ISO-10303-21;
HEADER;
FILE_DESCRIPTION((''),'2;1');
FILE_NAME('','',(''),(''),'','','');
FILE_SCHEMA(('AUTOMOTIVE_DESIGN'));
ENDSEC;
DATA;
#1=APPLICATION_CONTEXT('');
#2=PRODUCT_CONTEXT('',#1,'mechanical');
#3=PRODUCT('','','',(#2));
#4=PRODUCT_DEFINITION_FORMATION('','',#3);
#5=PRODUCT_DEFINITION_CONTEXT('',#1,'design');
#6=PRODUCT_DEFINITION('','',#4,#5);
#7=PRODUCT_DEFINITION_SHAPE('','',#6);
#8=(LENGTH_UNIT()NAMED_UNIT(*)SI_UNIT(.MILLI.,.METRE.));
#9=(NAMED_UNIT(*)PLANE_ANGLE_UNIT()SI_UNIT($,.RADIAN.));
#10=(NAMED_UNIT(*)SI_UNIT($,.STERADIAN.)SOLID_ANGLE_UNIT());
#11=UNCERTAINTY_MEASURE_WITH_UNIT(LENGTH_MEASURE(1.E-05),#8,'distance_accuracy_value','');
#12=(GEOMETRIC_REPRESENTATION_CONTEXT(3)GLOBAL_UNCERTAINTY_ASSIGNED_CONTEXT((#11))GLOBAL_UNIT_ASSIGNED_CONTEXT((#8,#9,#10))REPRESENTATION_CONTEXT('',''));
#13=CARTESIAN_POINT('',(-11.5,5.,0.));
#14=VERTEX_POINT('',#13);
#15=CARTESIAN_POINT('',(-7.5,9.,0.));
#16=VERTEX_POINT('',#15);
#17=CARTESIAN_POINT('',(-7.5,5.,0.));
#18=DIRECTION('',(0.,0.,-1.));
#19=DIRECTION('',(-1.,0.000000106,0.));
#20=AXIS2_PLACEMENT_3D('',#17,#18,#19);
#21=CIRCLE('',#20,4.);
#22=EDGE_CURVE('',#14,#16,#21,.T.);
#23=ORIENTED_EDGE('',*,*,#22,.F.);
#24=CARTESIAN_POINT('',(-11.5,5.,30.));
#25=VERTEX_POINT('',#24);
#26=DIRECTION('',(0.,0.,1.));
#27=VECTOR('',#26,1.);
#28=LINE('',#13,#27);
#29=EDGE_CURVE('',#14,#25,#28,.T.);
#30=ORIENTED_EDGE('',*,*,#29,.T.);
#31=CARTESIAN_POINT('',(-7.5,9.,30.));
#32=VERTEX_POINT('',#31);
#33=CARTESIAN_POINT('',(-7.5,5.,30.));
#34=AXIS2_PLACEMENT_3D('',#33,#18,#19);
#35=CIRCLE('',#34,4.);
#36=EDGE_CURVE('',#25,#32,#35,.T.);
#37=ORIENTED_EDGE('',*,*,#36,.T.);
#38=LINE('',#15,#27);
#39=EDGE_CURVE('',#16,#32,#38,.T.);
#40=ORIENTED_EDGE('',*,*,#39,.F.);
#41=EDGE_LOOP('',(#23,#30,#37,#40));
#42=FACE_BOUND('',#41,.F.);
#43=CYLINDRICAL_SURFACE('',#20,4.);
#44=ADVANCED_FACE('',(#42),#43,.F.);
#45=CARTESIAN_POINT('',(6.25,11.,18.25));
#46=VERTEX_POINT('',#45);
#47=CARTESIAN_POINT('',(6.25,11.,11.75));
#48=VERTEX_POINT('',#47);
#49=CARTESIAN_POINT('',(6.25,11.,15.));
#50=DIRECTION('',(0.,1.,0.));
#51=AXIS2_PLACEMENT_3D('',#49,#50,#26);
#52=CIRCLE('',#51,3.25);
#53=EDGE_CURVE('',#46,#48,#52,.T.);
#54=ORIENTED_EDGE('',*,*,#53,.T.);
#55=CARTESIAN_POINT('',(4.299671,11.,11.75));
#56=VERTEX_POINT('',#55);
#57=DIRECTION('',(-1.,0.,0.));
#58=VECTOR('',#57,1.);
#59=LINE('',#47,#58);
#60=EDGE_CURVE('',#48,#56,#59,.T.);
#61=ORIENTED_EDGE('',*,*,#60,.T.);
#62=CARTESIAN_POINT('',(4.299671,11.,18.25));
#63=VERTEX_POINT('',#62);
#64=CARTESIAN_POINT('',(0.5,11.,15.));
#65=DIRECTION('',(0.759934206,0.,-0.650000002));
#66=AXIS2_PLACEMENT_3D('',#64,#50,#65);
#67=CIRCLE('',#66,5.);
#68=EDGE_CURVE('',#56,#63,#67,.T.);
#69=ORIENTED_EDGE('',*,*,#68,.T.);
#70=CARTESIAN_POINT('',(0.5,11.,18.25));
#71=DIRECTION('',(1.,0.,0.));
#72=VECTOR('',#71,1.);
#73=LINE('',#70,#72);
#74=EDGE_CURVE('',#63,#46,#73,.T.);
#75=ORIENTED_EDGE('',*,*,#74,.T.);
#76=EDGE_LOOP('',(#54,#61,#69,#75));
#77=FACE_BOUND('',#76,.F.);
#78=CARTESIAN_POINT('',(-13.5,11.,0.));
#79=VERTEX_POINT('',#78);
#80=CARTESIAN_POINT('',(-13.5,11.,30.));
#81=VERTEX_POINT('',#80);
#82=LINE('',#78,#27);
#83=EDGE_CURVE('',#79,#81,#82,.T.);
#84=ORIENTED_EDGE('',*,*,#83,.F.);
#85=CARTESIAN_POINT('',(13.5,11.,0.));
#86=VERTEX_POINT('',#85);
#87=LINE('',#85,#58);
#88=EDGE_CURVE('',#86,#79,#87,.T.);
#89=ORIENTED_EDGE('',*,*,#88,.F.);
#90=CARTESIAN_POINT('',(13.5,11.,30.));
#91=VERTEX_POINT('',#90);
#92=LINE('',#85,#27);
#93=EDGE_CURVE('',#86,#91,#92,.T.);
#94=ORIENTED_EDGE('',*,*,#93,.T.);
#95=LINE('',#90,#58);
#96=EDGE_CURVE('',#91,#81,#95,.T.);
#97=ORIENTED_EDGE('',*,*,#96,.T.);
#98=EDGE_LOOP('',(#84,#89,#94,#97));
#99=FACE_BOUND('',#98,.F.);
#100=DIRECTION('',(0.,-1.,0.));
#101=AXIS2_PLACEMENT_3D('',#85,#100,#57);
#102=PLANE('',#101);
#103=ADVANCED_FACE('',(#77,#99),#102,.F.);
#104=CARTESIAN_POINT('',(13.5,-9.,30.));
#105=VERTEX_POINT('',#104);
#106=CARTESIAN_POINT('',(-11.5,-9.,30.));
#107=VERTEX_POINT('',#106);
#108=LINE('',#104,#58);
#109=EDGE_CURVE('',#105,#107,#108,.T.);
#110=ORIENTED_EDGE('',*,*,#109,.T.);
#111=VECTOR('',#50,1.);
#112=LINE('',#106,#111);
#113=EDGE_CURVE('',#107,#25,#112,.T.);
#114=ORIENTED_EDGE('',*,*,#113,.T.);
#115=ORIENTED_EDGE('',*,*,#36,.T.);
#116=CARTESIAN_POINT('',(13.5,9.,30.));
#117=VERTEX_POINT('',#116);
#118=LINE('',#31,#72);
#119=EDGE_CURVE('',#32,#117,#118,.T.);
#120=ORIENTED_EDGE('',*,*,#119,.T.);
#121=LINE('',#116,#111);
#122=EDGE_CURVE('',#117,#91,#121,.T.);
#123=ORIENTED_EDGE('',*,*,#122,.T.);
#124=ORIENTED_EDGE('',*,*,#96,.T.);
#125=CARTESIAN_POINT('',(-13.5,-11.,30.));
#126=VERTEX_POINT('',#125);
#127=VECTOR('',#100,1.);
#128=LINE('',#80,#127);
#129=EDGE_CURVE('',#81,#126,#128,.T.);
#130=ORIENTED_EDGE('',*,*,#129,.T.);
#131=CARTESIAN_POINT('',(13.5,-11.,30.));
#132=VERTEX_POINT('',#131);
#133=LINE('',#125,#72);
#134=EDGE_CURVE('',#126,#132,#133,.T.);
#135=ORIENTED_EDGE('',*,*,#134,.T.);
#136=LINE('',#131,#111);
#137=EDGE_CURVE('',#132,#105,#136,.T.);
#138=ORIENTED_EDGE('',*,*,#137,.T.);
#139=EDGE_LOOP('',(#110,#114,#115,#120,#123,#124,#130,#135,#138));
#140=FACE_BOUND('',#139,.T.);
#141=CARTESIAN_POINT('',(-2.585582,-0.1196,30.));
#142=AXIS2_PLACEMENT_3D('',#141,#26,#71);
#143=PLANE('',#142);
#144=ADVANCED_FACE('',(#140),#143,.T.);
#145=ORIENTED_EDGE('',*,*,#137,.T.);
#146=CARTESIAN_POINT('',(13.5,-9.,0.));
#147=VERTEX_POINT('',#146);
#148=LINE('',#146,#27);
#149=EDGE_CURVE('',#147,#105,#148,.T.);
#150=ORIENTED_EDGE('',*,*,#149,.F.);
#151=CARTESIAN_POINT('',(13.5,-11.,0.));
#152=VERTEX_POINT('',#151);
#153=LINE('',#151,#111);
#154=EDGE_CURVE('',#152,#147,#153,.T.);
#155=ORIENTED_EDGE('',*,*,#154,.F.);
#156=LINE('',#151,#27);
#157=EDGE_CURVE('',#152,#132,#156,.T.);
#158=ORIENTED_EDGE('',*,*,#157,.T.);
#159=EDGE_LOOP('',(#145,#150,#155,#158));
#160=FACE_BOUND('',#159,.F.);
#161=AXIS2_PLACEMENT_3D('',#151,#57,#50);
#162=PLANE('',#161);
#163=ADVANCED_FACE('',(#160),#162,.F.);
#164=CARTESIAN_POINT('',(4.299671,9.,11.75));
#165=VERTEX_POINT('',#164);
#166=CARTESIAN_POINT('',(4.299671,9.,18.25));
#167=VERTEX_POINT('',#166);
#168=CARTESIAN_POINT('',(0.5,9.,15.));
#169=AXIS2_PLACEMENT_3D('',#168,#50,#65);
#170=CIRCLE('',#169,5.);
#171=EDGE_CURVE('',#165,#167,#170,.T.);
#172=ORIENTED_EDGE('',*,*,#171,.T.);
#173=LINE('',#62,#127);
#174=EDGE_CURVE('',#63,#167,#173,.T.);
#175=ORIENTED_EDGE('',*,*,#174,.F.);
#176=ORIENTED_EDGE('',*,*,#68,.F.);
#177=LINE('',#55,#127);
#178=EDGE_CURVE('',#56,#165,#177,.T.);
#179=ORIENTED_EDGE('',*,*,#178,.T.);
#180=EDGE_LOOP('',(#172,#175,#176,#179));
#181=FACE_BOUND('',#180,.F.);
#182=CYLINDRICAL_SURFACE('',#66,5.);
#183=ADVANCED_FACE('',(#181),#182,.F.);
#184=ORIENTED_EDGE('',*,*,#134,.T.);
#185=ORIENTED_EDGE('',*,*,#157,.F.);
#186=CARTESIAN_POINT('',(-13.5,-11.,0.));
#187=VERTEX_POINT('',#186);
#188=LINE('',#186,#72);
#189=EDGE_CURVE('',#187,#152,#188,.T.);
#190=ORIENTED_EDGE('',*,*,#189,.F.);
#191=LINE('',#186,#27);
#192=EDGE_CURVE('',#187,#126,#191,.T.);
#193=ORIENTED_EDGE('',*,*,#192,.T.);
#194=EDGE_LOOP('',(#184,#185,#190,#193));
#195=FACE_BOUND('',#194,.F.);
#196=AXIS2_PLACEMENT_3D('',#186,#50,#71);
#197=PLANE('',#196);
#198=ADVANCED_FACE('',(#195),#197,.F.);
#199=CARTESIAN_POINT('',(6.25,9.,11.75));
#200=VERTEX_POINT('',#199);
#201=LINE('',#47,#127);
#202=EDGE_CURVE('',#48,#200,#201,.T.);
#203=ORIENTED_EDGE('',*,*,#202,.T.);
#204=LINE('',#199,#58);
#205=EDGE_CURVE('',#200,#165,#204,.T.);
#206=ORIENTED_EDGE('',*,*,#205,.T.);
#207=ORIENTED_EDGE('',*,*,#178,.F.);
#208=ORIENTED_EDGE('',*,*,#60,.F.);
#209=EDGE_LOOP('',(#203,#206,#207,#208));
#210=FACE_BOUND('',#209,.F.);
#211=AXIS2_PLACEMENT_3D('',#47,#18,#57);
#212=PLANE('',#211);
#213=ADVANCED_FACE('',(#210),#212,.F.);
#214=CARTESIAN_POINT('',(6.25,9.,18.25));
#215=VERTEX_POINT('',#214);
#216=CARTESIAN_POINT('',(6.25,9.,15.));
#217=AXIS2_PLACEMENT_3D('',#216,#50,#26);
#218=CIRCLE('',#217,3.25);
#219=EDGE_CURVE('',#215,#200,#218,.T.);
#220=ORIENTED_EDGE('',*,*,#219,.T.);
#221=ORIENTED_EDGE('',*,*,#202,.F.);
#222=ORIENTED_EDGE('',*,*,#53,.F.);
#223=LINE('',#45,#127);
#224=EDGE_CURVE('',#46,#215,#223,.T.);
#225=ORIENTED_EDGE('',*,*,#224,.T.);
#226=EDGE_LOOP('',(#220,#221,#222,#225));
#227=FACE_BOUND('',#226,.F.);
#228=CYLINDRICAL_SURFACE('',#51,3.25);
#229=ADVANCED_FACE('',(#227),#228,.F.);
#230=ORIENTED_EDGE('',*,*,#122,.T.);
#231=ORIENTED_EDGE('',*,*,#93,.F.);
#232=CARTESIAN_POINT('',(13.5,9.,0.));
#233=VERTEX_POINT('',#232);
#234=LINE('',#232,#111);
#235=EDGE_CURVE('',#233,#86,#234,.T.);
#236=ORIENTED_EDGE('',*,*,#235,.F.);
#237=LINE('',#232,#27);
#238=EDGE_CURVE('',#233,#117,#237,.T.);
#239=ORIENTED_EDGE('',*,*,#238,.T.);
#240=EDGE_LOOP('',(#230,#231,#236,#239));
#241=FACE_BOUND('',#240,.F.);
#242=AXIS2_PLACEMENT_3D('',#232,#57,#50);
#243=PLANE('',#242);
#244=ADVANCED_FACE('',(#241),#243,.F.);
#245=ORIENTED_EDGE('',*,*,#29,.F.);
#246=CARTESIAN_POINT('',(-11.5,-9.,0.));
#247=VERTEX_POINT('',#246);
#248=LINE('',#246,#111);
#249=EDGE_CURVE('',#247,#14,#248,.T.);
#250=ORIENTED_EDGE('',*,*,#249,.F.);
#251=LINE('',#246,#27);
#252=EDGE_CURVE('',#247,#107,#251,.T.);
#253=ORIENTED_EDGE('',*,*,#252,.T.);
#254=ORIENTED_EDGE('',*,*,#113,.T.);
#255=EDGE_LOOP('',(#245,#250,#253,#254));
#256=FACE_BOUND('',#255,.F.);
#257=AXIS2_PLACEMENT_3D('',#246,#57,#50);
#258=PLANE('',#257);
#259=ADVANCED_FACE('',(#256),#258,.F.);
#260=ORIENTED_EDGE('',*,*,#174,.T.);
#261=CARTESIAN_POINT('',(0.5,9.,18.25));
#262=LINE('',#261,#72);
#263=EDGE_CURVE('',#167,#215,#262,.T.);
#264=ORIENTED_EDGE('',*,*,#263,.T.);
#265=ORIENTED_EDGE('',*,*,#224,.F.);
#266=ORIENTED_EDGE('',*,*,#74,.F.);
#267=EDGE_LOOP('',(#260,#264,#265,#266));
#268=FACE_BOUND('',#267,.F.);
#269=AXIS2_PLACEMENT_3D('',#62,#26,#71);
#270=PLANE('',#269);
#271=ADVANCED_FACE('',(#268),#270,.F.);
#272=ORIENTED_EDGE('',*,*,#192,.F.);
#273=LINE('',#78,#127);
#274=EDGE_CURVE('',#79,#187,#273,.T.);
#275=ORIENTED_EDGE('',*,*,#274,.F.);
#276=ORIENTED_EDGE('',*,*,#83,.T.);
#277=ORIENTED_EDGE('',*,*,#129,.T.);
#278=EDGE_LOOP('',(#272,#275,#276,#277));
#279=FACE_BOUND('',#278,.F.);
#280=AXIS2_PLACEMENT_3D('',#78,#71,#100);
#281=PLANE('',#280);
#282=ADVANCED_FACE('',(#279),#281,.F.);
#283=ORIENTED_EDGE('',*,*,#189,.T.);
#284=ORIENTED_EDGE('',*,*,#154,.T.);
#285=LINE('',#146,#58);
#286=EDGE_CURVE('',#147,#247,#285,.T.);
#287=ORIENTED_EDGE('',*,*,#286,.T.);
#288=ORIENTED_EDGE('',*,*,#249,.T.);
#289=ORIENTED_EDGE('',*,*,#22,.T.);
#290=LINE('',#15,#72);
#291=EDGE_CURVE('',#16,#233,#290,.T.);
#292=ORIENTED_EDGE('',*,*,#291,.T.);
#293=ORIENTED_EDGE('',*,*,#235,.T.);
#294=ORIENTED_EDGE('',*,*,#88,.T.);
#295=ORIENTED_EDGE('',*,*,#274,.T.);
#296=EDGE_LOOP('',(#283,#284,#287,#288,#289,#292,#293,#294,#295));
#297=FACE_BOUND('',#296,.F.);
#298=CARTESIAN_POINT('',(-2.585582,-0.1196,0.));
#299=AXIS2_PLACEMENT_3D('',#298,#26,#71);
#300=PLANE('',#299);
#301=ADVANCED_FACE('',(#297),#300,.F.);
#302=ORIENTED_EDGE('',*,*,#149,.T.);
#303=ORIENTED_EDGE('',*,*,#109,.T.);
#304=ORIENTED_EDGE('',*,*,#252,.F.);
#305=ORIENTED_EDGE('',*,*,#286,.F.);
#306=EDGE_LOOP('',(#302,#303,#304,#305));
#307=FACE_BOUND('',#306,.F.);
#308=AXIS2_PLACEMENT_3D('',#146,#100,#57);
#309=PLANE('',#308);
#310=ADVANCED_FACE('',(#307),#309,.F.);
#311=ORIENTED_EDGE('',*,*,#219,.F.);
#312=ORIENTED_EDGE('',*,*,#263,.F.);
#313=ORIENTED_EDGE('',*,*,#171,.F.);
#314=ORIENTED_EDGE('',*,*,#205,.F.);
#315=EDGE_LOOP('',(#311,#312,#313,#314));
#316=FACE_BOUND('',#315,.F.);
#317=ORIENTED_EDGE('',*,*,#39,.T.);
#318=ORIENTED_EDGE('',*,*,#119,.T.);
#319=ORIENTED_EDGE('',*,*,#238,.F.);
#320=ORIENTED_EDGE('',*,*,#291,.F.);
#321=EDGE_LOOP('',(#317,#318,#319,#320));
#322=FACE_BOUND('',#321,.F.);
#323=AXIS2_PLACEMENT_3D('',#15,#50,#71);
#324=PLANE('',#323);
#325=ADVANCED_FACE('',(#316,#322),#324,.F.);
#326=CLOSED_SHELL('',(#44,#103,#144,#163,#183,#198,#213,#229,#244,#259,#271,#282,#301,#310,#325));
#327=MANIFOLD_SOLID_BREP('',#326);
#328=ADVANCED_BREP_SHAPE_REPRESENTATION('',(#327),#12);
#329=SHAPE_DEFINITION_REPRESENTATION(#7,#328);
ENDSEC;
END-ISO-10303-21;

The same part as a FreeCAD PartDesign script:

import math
import FreeCAD as App
import Part
import Sketcher
from FreeCAD import Vector

doc = App.newDocument("Part")
body = doc.addObject("PartDesign::Body", "Body")

# Sketch on XY plane
sketch1 = body.newObject("Sketcher::SketchObject", "Sketch")
sketch1.AttachmentSupport = (doc.getObject("XY_Plane"), [""])
sketch1.MapMode = "FlatFace"
sketch1.addGeometry([
    Part.LineSegment(Vector(-13.5, -11, 0), Vector(13.5, -11, 0)),  # 0
    Part.LineSegment(Vector(13.5, -11, 0), Vector(13.5, -9, 0)),  # 1
    Part.LineSegment(Vector(13.5, -9, 0), Vector(-11.5, -9, 0)),  # 2
    Part.LineSegment(Vector(-11.5, -9, 0), Vector(-11.5, 5, 0)),  # 3
    Part.ArcOfCircle(Part.Circle(Vector(-7.5, 5, 0), Vector(0, 0, 1), 4), math.radians(90), math.radians(180)),  # 4
    Part.LineSegment(Vector(-7.5, 9, 0), Vector(13.5, 9, 0)),  # 5
    Part.LineSegment(Vector(13.5, 9, 0), Vector(13.5, 11, 0)),  # 6
    Part.LineSegment(Vector(13.5, 11, 0), Vector(-13.5, 11, 0)),  # 7
    Part.LineSegment(Vector(-13.5, 11, 0), Vector(-13.5, -11, 0)),  # 8
], False)
sketch1.addConstraint([
    Sketcher.Constraint("Coincident", 0, 2, 1, 1),
    Sketcher.Constraint("Coincident", 1, 2, 2, 1),
    Sketcher.Constraint("Coincident", 2, 2, 3, 1),
    Sketcher.Constraint("Tangent", 3, 2, 4, 2),
    Sketcher.Constraint("Tangent", 4, 1, 5, 1),
    Sketcher.Constraint("Coincident", 5, 2, 6, 1),
    Sketcher.Constraint("Coincident", 6, 2, 7, 1),
    Sketcher.Constraint("Coincident", 7, 2, 8, 1),
    Sketcher.Constraint("Coincident", 8, 2, 0, 1),
    Sketcher.Constraint("Horizontal", 0),
    Sketcher.Constraint("Vertical", 1),
    Sketcher.Constraint("Horizontal", 2),
    Sketcher.Constraint("Vertical", 3),
    Sketcher.Constraint("Horizontal", 5),
    Sketcher.Constraint("Vertical", 6),
    Sketcher.Constraint("Horizontal", 7),
    Sketcher.Constraint("Vertical", 8),
    Sketcher.Constraint("Symmetric", 0, 2, 7, 2, -1, 1),
    Sketcher.Constraint("Symmetric", 1, 2, 5, 2, -1),
    Sketcher.Constraint("Radius", 4, 4.0),
    Sketcher.Constraint("DistanceX", 0, 1, 0, 2, 27.0),
    Sketcher.Constraint("DistanceX", 2, 2, 2, 1, 25.0),
    Sketcher.Constraint("DistanceY", 1, 1, 1, 2, 2.0),
    Sketcher.Constraint("DistanceY", 3, 1, 3, 2, 14.0),
])
pad1 = body.newObject("PartDesign::Pad", "Pad")
pad1.Profile = sketch1
pad1.Length = 30

# Sketch on XZ plane
sketch2 = body.newObject("Sketcher::SketchObject", "Sketch001")
sketch2.AttachmentSupport = (doc.getObject("XZ_Plane"), [""])
sketch2.MapMode = "FlatFace"
sketch2.AttachmentOffset = App.Placement(Vector(0, 0, -11), App.Rotation())
sketch2.addGeometry([
    Part.LineSegment(Vector(6.2, 11.8, 0), Vector(4.3, 11.8, 0)),
    Part.ArcOfCircle(Part.Circle(Vector(0.5, 15, 0), Vector(0, 0, 1), 5), math.radians(41), math.radians(319)),
    Part.LineSegment(Vector(4.3, 18.2, 0), Vector(6.2, 18.2, 0)),
    Part.ArcOfCircle(Part.Circle(Vector(6.2, 15, 0), Vector(0, 0, 1), 3.2), math.radians(-90), math.radians(90)),
], False)
sketch2.addConstraint([
    Sketcher.Constraint("Coincident", 0, 2, 1, 2),
    Sketcher.Constraint("Coincident", 1, 1, 2, 1),
    Sketcher.Constraint("Tangent", 2, 2, 3, 2),
    Sketcher.Constraint("Tangent", 3, 1, 0, 1),
    Sketcher.Constraint("Horizontal", 0),
    Sketcher.Constraint("Horizontal", 2),
    Sketcher.Constraint("Horizontal", 1, 3, 3, 3),
    Sketcher.Constraint("Radius", 1, 5.0),
    Sketcher.Constraint("Radius", 3, 3.25),
    Sketcher.Constraint("DistanceY", -1, 1, 1, 3, 15.0),
    Sketcher.Constraint("DistanceX", -1, 1, 1, 3, 0.5),
    Sketcher.Constraint("DistanceX", -1, 1, 3, 3, 6.25),
])
pocket1 = body.newObject("PartDesign::Pocket", "Pocket")
pocket1.Profile = sketch2
pocket1.Length = 2
pocket1.Reversed = True

doc.recompute()
